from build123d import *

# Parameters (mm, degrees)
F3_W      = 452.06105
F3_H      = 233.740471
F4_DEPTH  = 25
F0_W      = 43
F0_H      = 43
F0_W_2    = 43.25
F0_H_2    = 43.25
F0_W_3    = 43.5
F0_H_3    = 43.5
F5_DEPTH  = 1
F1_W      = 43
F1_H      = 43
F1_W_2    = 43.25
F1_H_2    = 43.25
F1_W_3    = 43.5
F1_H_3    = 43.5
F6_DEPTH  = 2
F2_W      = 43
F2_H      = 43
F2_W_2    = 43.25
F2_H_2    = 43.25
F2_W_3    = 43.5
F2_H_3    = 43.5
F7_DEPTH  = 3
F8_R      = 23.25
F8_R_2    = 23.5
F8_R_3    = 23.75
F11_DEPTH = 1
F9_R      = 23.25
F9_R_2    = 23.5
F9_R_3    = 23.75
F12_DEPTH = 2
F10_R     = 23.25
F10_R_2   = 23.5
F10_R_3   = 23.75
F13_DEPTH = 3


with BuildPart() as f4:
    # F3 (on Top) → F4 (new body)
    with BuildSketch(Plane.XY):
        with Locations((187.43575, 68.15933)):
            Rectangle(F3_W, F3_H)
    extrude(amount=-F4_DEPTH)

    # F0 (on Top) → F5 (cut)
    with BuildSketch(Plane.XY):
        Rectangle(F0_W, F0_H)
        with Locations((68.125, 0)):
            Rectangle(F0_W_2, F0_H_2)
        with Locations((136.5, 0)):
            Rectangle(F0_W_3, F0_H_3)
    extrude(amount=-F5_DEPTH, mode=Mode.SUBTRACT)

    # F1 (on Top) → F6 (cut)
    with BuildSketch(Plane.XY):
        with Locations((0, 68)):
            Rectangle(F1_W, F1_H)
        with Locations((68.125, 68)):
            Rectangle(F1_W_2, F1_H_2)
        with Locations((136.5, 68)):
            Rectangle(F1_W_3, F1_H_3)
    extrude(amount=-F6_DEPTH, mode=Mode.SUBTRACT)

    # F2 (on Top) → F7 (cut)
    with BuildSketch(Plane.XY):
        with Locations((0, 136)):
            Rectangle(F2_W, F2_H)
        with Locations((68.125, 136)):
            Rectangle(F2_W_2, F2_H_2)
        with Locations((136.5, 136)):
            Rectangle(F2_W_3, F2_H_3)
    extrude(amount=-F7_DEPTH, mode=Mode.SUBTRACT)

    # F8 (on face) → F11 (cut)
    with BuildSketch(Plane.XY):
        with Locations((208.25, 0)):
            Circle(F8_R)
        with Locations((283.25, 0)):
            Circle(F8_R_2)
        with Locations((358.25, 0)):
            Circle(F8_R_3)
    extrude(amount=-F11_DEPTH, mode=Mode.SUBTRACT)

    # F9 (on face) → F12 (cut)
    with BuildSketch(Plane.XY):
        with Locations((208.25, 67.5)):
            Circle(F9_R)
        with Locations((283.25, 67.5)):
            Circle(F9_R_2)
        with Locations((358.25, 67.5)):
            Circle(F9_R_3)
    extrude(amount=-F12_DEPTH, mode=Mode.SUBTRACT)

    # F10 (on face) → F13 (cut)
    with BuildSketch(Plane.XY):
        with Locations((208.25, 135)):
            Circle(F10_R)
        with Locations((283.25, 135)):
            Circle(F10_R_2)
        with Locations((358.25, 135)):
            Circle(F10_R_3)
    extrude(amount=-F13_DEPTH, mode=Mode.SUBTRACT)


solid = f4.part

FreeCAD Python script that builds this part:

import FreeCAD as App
import Part
import Sketcher
Q = App.Units.Quantity


def add_polygon(sketch, points):
    """Adds a closed chain of lines whose ends are joined by coincident constraints."""
    first, n = sketch.GeometryCount, len(points)
    for a, b in zip(points, points[1:] + points[:1]):
        sketch.addGeometry(Part.LineSegment(App.Vector(*a, 0), App.Vector(*b, 0)), False)
    for i in range(n):
        sketch.addConstraint(Sketcher.Constraint("Coincident", first + i, 2, first + (i + 1) % n, 1))

doc = App.newDocument("Part")
body = doc.addObject("PartDesign::Body", "Body")

# Sketch on XY plane
sketch1 = doc.addObject("Sketcher::SketchObject", "Sketch")
body.addObject(sketch1)
sketch1.AttachmentSupport = (doc.XY_Plane, [""])
sketch1.MapMode = "FlatFace"
add_polygon(sketch1, [(-39, 185), (-39, -49), (413, -49), (413, 185)])  # lines 0-3
sketch1.addConstraint([
    Sketcher.Constraint("Vertical", 0),
    Sketcher.Constraint("Horizontal", 1),
    Sketcher.Constraint("Vertical", 2),
    Sketcher.Constraint("Horizontal", 3),
    Sketcher.Constraint("DistanceX", 1, 1, 1, 2, Q("452.06105 mm")),
    Sketcher.Constraint("DistanceY", 0, 2, 0, 1, Q("233.740471 mm")),
    Sketcher.Constraint("DistanceX", 0, 2, -1, 1, Q("38.594775 mm")),
    Sketcher.Constraint("DistanceY", 0, 2, -1, 1, Q("48.710906 mm")),
])
pad1 = doc.addObject("PartDesign::Pad", "Pad")
body.addObject(pad1)
pad1.Profile = sketch1
pad1.Length = 25
pad1.Reversed = True

# Sketch on XY plane
sketch2 = doc.addObject("Sketcher::SketchObject", "Sketch001")
body.addObject(sketch2)
sketch2.AttachmentSupport = (doc.XY_Plane, [""])
sketch2.MapMode = "FlatFace"
add_polygon(sketch2, [(-22, 22), (-22, -22), (22, -22), (22, 22)])  # lines 0-3
add_polygon(sketch2, [(46, 22), (46, -22), (90, -22), (90, 22)])  # lines 4-7
add_polygon(sketch2, [(115, 22), (115, -22), (158, -22), (158, 22)])  # lines 8-11
sketch2.addConstraint([
    Sketcher.Constraint("Vertical", 0),
    Sketcher.Constraint("Horizontal", 1),
    Sketcher.Constraint("Vertical", 2),
    Sketcher.Constraint("Horizontal", 3),
    Sketcher.Constraint("Vertical", 4),
    Sketcher.Constraint("Horizontal", 5),
    Sketcher.Constraint("Vertical", 6),
    Sketcher.Constraint("Horizontal", 7),
    Sketcher.Constraint("Vertical", 8),
    Sketcher.Constraint("Horizontal", 9),
    Sketcher.Constraint("Vertical", 10),
    Sketcher.Constraint("Horizontal", 11),
    Sketcher.Constraint("Symmetric", 0, 2, 2, 2, -1, 1),
    Sketcher.Constraint("Equal", 3, 0),
    Sketcher.Constraint("Equal", 7, 4),
    Sketcher.Constraint("Equal", 11, 8),
    Sketcher.Constraint("DistanceX", 1, 1, 1, 2, Q("43 mm")),
    Sketcher.Constraint("DistanceX", 9, 1, 9, 2, Q("43.5 mm")),
    Sketcher.Constraint("DistanceX", 1, 2, 4, 2, Q("25 mm")),
    Sketcher.Constraint("DistanceX", 5, 2, 8, 2, Q("25 mm")),
    Sketcher.Constraint("DistanceX", 5, 1, 5, 2, Q("43.25 mm")),
    Sketcher.Constraint("DistanceY", 8, 2, -1, 1, Q("21.75 mm")),
    Sketcher.Constraint("DistanceY", 4, 2, -1, 1, Q("21.625 mm")),
])
pocket1 = doc.addObject("PartDesign::Pocket", "Pocket")
body.addObject(pocket1)
pocket1.Profile = sketch2
pocket1.Length = 1

# Sketch on XY plane
sketch3 = doc.addObject("Sketcher::SketchObject", "Sketch002")
body.addObject(sketch3)
sketch3.AttachmentSupport = (doc.XY_Plane, [""])
sketch3.MapMode = "FlatFace"
add_polygon(sketch3, [(-22, 90), (-22, 46), (22, 46), (22, 90)])  # lines 0-3
add_polygon(sketch3, [(46, 90), (46, 46), (90, 46), (90, 90)])  # lines 4-7
add_polygon(sketch3, [(115, 90), (115, 46), (158, 46), (158, 90)])  # lines 8-11
sketch3.addConstraint([
    Sketcher.Constraint("Vertical", 0),
    Sketcher.Constraint("Horizontal", 1),
    Sketcher.Constraint("Vertical", 2),
    Sketcher.Constraint("Horizontal", 3),
    Sketcher.Constraint("Vertical", 4),
    Sketcher.Constraint("Horizontal", 5),
    Sketcher.Constraint("Vertical", 6),
    Sketcher.Constraint("Horizontal", 7),
    Sketcher.Constraint("Vertical", 8),
    Sketcher.Constraint("Horizontal", 9),
    Sketcher.Constraint("Vertical", 10),
    Sketcher.Constraint("Horizontal", 11),
    Sketcher.Constraint("Equal", 3, 0),
    Sketcher.Constraint("Equal", 7, 4),
    Sketcher.Constraint("Equal", 11, 8),
    Sketcher.Constraint("DistanceX", 1, 1, 1, 2, Q("43 mm")),
    Sketcher.Constraint("DistanceX", 9, 1, 9, 2, Q("43.5 mm")),
    Sketcher.Constraint("DistanceX", 1, 2, 4, 2, Q("25 mm")),
    Sketcher.Constraint("DistanceX", 5, 2, 8, 2, Q("25 mm")),
    Sketcher.Constraint("DistanceX", 5, 1, 5, 2, Q("43.25 mm")),
    Sketcher.Constraint("DistanceX", 0, 2, -1, 1, Q("21.5 mm")),
    Sketcher.Constraint("DistanceY", -1, 1, 0, 2, Q("46.5 mm")),
    Sketcher.Constraint("DistanceY", -1, 1, 8, 2, Q("46.25 mm")),
    Sketcher.Constraint("DistanceY", -1, 1, 4, 2, Q("46.375 mm")),
])
pocket2 = doc.addObject("PartDesign::Pocket", "Pocket001")
body.addObject(pocket2)
pocket2.Profile = sketch3
pocket2.Length = 2

# Sketch on XY plane
sketch4 = doc.addObject("Sketcher::SketchObject", "Sketch003")
body.addObject(sketch4)
sketch4.AttachmentSupport = (doc.XY_Plane, [""])
sketch4.MapMode = "FlatFace"
add_polygon(sketch4, [(-22, 158), (-22, 114), (22, 114), (22, 158)])  # lines 0-3
add_polygon(sketch4, [(46, 158), (46, 114), (90, 114), (90, 158)])  # lines 4-7
add_polygon(sketch4, [(115, 158), (115, 114), (158, 114), (158, 158)])  # lines 8-11
sketch4.addConstraint([
    Sketcher.Constraint("Vertical", 0),
    Sketcher.Constraint("Horizontal", 1),
    Sketcher.Constraint("Vertical", 2),
    Sketcher.Constraint("Horizontal", 3),
    Sketcher.Constraint("Vertical", 4),
    Sketcher.Constraint("Horizontal", 5),
    Sketcher.Constraint("Vertical", 6),
    Sketcher.Constraint("Horizontal", 7),
    Sketcher.Constraint("Vertical", 8),
    Sketcher.Constraint("Horizontal", 9),
    Sketcher.Constraint("Vertical", 10),
    Sketcher.Constraint("Horizontal", 11),
    Sketcher.Constraint("Equal", 3, 0),
    Sketcher.Constraint("Equal", 7, 4),
    Sketcher.Constraint("Equal", 11, 8),
    Sketcher.Constraint("DistanceX", 1, 1, 1, 2, Q("43 mm")),
    Sketcher.Constraint("DistanceX", 9, 1, 9, 2, Q("43.5 mm")),
    Sketcher.Constraint("DistanceX", 1, 2, 4, 2, Q("25 mm")),
    Sketcher.Constraint("DistanceX", 5, 2, 8, 2, Q("25 mm")),
    Sketcher.Constraint("DistanceX", 5, 1, 5, 2, Q("43.25 mm")),
    Sketcher.Constraint("DistanceX", 0, 2, -1, 1, Q("21.5 mm")),
    Sketcher.Constraint("DistanceY", -1, 1, 0, 2, Q("114.5 mm")),
    Sketcher.Constraint("DistanceY", -1, 1, 8, 2, Q("114.25 mm")),
    Sketcher.Constraint("DistanceY", -1, 1, 4, 2, Q("114.375 mm")),
])
pocket3 = doc.addObject("PartDesign::Pocket", "Pocket002")
body.addObject(pocket3)
pocket3.Profile = sketch4
pocket3.Length = 3

# Sketch on XY plane
sketch5 = doc.addObject("Sketcher::SketchObject", "Sketch004")
body.addObject(sketch5)
sketch5.AttachmentSupport = (doc.XY_Plane, [""])
sketch5.MapMode = "FlatFace"
sketch5.addGeometry([
    Part.Circle(App.Vector(208, 0, 0), App.Vector(0, 0, 1), 23),
    Part.Circle(App.Vector(283, 0, 0), App.Vector(0, 0, 1), 24),
    Part.Circle(App.Vector(358, 0, 0), App.Vector(0, 0, 1), 24),
], False)
sketch5.addConstraint([
    Sketcher.Constraint("PointOnObject", 0, 3, -1),
    Sketcher.Constraint("PointOnObject", 1, 3, -1),
    Sketcher.Constraint("PointOnObject", 2, 3, -1),
    Sketcher.Constraint("Diameter", 1, Q("47 mm")),
    Sketcher.Constraint("Diameter", 0, Q("46.5 mm")),
    Sketcher.Constraint("Diameter", 2, Q("47.5 mm")),
    Sketcher.Constraint("DistanceX", 0, 3, 1, 3, Q("75 mm")),
    Sketcher.Constraint("DistanceX", 1, 3, 2, 3, Q("75 mm")),
    Sketcher.Constraint("DistanceX", -1, 1, 0, 3, Q("208.25 mm")),
])
pocket4 = doc.addObject("PartDesign::Pocket", "Pocket003")
body.addObject(pocket4)
pocket4.Profile = sketch5
pocket4.Length = 1

# Sketch on XY plane
sketch6 = doc.addObject("Sketcher::SketchObject", "Sketch005")
body.addObject(sketch6)
sketch6.AttachmentSupport = (doc.XY_Plane, [""])
sketch6.MapMode = "FlatFace"
sketch6.addGeometry([
    Part.Circle(App.Vector(208, 68, 0), App.Vector(0, 0, 1), 23),
    Part.Circle(App.Vector(283, 68, 0), App.Vector(0, 0, 1), 24),
    Part.Circle(App.Vector(358, 68, 0), App.Vector(0, 0, 1), 24),
], False)
sketch6.addConstraint([
    Sketcher.Constraint("Horizontal", 0, 3, 1, 3),
    Sketcher.Constraint("Horizontal", 1, 3, 2, 3),
    Sketcher.Constraint("Diameter", 1, Q("47 mm")),
    Sketcher.Constraint("Diameter", 0, Q("46.5 mm")),
    Sketcher.Constraint("Diameter", 2, Q("47.5 mm")),
    Sketcher.Constraint("DistanceX", 0, 3, 1, 3, Q("75 mm")),
    Sketcher.Constraint("DistanceX", 1, 3, 2, 3, Q("75 mm")),
    Sketcher.Constraint("DistanceY", -1, 1, 0, 3, Q("67.5 mm")),
    Sketcher.Constraint("DistanceX", -1, 1, 0, 3, Q("208.25 mm")),
])
pocket5 = doc.addObject("PartDesign::Pocket", "Pocket004")
body.addObject(pocket5)
pocket5.Profile = sketch6
pocket5.Length = 2

# Sketch on XY plane
sketch7 = doc.addObject("Sketcher::SketchObject", "Sketch006")
body.addObject(sketch7)
sketch7.AttachmentSupport = (doc.XY_Plane, [""])
sketch7.MapMode = "FlatFace"
sketch7.addGeometry([
    Part.Circle(App.Vector(208, 135, 0), App.Vector(0, 0, 1), 23),
    Part.Circle(App.Vector(283, 135, 0), App.Vector(0, 0, 1), 24),
    Part.Circle(App.Vector(358, 135, 0), App.Vector(0, 0, 1), 24),
], False)
sketch7.addConstraint([
    Sketcher.Constraint("Horizontal", 0, 3, 1, 3),
    Sketcher.Constraint("Horizontal", 1, 3, 2, 3),
    Sketcher.Constraint("Diameter", 1, Q("47 mm")),
    Sketcher.Constraint("Diameter", 0, Q("46.5 mm")),
    Sketcher.Constraint("Diameter", 2, Q("47.5 mm")),
    Sketcher.Constraint("DistanceY", -1, 1, 0, 3, Q("135 mm")),
    Sketcher.Constraint("DistanceX", 0, 3, 1, 3, Q("75 mm")),
    Sketcher.Constraint("DistanceX", 1, 3, 2, 3, Q("75 mm")),
    Sketcher.Constraint("DistanceX", -1, 1, 0, 3, Q("208.25 mm")),
])
pocket6 = doc.addObject("PartDesign::Pocket", "Pocket005")
body.addObject(pocket6)
pocket6.Profile = sketch7
pocket6.Length = 3

doc.recompute()
